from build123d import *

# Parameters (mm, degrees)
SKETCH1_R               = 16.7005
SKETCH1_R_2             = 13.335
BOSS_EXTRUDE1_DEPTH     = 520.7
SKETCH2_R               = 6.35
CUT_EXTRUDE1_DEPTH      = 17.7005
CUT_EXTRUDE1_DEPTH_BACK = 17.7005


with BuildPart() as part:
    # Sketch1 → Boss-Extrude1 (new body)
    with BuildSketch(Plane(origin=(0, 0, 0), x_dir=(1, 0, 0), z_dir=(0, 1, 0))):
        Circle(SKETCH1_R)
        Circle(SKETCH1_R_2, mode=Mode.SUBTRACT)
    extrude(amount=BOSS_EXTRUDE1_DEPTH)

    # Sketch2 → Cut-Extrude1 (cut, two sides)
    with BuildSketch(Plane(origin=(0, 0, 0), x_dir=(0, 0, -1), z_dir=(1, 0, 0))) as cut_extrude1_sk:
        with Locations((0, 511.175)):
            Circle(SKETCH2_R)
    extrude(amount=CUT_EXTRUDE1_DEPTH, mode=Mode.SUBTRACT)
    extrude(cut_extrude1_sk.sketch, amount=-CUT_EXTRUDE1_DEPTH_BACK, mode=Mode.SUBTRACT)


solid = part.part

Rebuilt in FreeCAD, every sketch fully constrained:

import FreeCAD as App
import Part
import Sketcher
Q = App.Units.Quantity

doc = App.newDocument("Part")
body = doc.addObject("PartDesign::Body", "Body")

# Sketch on XZ plane
sketch1 = body.newObject("Sketcher::SketchObject", "Sketch")
sketch1.AttachmentSupport = (doc.getObject("XZ_Plane"), [""])
sketch1.MapMode = "FlatFace"
sketch1.addGeometry(Part.Circle(App.Vector(0, 0, 0), App.Vector(0, 0, 1), 17), False)
sketch1.addGeometry(Part.Circle(App.Vector(0, 0, 0), App.Vector(0, 0, 1), 13), False)
sketch1.addConstraint(Sketcher.Constraint("Coincident", 0, 3, -1, 1))
sketch1.addConstraint(Sketcher.Constraint("Coincident", 1, 3, -1, 1))
sketch1.addConstraint(Sketcher.Constraint("Diameter", 1, Q("1.05 in")))
sketch1.addConstraint(Sketcher.Constraint("Diameter", 0, Q("1.315 in")))
pad1 = body.newObject("PartDesign::Pad", "Pad")
pad1.Profile = sketch1
pad1.Length = Q("20.5 in")
pad1.Reversed = True

# Sketch on YZ plane
sketch2 = body.newObject("Sketcher::SketchObject", "Sketch001")
sketch2.AttachmentSupport = (doc.getObject("YZ_Plane"), [""])
sketch2.MapMode = "FlatFace"
sketch2.addGeometry(Part.Circle(App.Vector(511, 0, 0), App.Vector(0, 0, 1), 6), False)
sketch2.addConstraint(Sketcher.Constraint("PointOnObject", 0, 3, -1))
sketch2.addConstraint(Sketcher.Constraint("Diameter", 0, Q("0.5 in")))
sketch2.addConstraint(Sketcher.Constraint("DistanceX", -1, 1, 0, 3, Q("20.125 in")))
pocket1 = body.newObject("PartDesign::Pocket", "Pocket")
pocket1.Profile = sketch2
pocket1.Type = "ThroughAll"
pocket1.Midplane = True

doc.recompute()
